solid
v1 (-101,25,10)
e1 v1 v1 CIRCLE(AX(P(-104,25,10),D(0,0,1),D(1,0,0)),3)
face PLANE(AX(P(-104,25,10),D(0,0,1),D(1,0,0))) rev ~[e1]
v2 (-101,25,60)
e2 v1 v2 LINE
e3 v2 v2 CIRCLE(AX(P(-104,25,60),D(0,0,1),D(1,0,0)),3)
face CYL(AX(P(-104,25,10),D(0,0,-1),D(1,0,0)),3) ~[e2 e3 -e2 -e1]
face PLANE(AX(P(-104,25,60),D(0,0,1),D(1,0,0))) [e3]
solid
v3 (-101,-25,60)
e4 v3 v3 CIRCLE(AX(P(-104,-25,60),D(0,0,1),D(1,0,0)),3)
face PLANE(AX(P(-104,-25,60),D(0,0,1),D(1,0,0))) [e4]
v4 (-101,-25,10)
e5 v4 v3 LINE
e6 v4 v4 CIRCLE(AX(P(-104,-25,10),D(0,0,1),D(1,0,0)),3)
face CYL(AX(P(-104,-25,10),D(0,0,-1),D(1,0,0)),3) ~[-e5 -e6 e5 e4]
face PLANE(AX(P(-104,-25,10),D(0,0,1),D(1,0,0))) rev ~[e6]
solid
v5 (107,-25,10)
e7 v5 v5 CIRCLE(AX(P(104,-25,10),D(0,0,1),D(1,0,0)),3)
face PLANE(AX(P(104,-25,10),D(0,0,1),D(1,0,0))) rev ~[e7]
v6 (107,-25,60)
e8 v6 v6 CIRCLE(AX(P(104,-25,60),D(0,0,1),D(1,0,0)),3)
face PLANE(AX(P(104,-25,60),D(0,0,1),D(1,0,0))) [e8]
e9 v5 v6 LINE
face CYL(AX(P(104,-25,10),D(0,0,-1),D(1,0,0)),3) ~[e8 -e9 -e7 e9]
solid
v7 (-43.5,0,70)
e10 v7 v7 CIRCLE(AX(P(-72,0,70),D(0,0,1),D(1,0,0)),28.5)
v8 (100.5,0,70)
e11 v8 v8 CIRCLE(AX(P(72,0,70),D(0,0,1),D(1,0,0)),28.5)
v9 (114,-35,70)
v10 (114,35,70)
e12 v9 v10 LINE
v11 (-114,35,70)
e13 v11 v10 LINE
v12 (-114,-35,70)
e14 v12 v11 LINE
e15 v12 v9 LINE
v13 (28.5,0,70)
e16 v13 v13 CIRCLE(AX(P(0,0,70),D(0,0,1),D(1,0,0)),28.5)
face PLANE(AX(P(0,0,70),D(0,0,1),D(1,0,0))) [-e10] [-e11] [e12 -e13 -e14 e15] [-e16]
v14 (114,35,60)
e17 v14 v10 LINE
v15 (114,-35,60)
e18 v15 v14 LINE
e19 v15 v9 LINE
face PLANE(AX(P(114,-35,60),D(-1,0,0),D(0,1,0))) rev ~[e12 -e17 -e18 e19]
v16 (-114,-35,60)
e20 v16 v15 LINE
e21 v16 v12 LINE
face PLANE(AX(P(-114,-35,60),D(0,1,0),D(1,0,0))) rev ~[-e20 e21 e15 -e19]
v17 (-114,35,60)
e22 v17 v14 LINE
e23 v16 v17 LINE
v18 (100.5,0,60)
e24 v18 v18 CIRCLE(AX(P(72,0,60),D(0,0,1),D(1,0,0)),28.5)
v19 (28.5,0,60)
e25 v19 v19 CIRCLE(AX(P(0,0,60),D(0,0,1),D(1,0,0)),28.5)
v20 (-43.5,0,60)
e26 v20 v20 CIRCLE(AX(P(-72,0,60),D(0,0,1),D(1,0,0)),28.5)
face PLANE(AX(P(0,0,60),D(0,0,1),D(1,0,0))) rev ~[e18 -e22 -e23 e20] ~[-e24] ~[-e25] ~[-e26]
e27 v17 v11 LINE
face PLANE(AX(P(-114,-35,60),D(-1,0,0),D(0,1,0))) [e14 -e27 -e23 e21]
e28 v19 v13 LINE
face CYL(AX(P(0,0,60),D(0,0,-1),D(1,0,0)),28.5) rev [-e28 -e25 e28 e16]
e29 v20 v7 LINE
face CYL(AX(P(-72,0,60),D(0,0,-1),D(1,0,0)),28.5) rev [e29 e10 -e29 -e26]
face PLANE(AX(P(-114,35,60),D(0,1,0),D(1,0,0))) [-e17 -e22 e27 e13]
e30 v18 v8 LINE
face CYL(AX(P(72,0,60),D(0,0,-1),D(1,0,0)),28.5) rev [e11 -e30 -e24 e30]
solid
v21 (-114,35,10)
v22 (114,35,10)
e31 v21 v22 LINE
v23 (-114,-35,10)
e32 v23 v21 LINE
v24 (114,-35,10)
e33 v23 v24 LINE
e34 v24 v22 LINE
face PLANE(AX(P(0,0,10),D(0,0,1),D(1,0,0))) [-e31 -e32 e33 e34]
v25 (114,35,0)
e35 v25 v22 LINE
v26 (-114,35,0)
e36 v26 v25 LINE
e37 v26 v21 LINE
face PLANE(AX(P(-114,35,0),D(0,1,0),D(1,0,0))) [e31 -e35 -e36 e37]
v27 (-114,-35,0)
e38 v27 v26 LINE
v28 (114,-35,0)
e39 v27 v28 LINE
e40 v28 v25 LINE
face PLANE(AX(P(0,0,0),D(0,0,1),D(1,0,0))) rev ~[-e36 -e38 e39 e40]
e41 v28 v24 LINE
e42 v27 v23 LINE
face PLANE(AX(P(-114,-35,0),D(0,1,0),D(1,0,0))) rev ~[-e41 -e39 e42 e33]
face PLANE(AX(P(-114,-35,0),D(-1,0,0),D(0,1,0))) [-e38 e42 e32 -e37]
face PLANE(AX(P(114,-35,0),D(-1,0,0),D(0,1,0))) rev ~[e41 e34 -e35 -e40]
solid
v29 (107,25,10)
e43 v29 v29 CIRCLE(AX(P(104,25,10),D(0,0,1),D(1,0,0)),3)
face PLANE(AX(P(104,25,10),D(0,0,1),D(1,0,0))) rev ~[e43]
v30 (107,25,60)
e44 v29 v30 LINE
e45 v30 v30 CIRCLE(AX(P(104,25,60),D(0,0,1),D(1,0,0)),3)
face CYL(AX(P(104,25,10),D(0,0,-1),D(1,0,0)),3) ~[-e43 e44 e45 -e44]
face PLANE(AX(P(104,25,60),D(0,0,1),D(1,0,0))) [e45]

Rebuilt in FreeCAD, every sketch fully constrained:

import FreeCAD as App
import Part
import Sketcher
from FreeCAD import Vector

doc = App.newDocument("Part")
body = doc.addObject("PartDesign::Body", "Body")

sketch1 = body.newObject("Sketcher::SketchObject", "Sketch")
sketch1.AttachmentSupport = (doc.getObject("XY_Plane"), [""])
sketch1.MapMode = "FlatFace"
sketch1.addGeometry([
    Part.LineSegment(Vector(-114, 35, 0), Vector(-114, -35, 0)),
    Part.LineSegment(Vector(-114, -35, 0), Vector(114, -35, 0)),
    Part.LineSegment(Vector(114, -35, 0), Vector(114, 35, 0)),
    Part.LineSegment(Vector(114, 35, 0), Vector(-114, 35, 0)),
], False)
sketch1.addConstraint([
    Sketcher.Constraint("Coincident", 0, 2, 1, 1),
    Sketcher.Constraint("Coincident", 1, 2, 2, 1),
    Sketcher.Constraint("Coincident", 2, 2, 3, 1),
    Sketcher.Constraint("Coincident", 3, 2, 0, 1),
    Sketcher.Constraint("Vertical", 0),
    Sketcher.Constraint("Horizontal", 1),
    Sketcher.Constraint("Vertical", 2),
    Sketcher.Constraint("Horizontal", 3),
    Sketcher.Constraint("Symmetric", 0, 2, 2, 2, -1, 1),
    Sketcher.Constraint("DistanceX", 1, 1, 1, 2, 228.0),
    Sketcher.Constraint("DistanceY", 0, 2, 0, 1, 70.0),
])
pad1 = body.newObject("PartDesign::Pad", "Pad")
pad1.Profile = sketch1
pad1.Length = 10
body2 = doc.addObject("PartDesign::Body", "Body001")

sketch2 = body2.newObject("Sketcher::SketchObject", "Sketch001")
sketch2.AttachmentSupport = (doc.getObject("XY_Plane001"), [""])
sketch2.MapMode = "FlatFace"
sketch2.AttachmentOffset = App.Placement(Vector(0, 0, 60), App.Rotation())
sketch2.addGeometry([
    Part.LineSegment(Vector(-114, 35, 0), Vector(-114, -35, 0)),
    Part.LineSegment(Vector(-114, -35, 0), Vector(114, -35, 0)),
    Part.LineSegment(Vector(114, -35, 0), Vector(114, 35, 0)),
    Part.LineSegment(Vector(114, 35, 0), Vector(-114, 35, 0)),
    Part.Circle(Vector(-72, 0, 0), Vector(0, 0, 1), 28),
    Part.Circle(Vector(0, 0, 0), Vector(0, 0, 1), 28),
    Part.Circle(Vector(72, 0, 0), Vector(0, 0, 1), 28),
], False)
sketch2.addConstraint([
    Sketcher.Constraint("Coincident", 0, 2, 1, 1),
    Sketcher.Constraint("Coincident", 1, 2, 2, 1),
    Sketcher.Constraint("Coincident", 2, 2, 3, 1),
    Sketcher.Constraint("Coincident", 3, 2, 0, 1),
    Sketcher.Constraint("Vertical", 0),
    Sketcher.Constraint("Horizontal", 1),
    Sketcher.Constraint("Vertical", 2),
    Sketcher.Constraint("Horizontal", 3),
    Sketcher.Constraint("Coincident", 5, 3, -1, 1),
    Sketcher.Constraint("Equal", 4, 5),
    Sketcher.Constraint("Equal", 5, 6),
    Sketcher.Constraint("Symmetric", 4, 3, 6, 3, -1, 1),
    Sketcher.Constraint("Symmetric", 0, 2, 2, 2, -1, 1),
    Sketcher.Constraint("PointOnObject", 4, 3, -1),
    Sketcher.Constraint("Diameter", 4, 57.0),
    Sketcher.Constraint("DistanceX", 1, 1, 1, 2, 228.0),
    Sketcher.Constraint("DistanceY", 0, 2, 0, 1, 70.0),
    Sketcher.Constraint("DistanceX", 4, 3, -1, 1, 72.0),
])
pad2 = body2.newObject("PartDesign::Pad", "Pad001")
pad2.Profile = sketch2
pad2.Length = 10
body3 = doc.addObject("PartDesign::Body", "Body002")

sketch3 = body3.newObject("Sketcher::SketchObject", "Sketch002")
sketch3.AttachmentSupport = (doc.getObject("XY_Plane002"), [""])
sketch3.MapMode = "FlatFace"
sketch3.AttachmentOffset = App.Placement(Vector(0, 0, 10), App.Rotation())
sketch3.addGeometry(Part.Circle(Vector(-104, -25, 0), Vector(0, 0, 1), 3), False)
sketch3.addConstraint([
    Sketcher.Constraint("Diameter", 0, 6.0),
    Sketcher.Constraint("DistanceX", 0, 3, -1, 1, 104.0),
    Sketcher.Constraint("DistanceY", 0, 3, -1, 1, 25.0),
])
pad3 = body3.newObject("PartDesign::Pad", "Pad002")
pad3.Profile = sketch3
pad3.Length = 50
body4 = doc.addObject("PartDesign::Body", "Body003")

sketch4 = body4.newObject("Sketcher::SketchObject", "Sketch003")
sketch4.AttachmentSupport = (doc.getObject("XY_Plane003"), [""])
sketch4.MapMode = "FlatFace"
sketch4.AttachmentOffset = App.Placement(Vector(0, 0, 10), App.Rotation())
sketch4.addGeometry(Part.Circle(Vector(-104, 25, 0), Vector(0, 0, 1), 3), False)
sketch4.addConstraint([
    Sketcher.Constraint("Diameter", 0, 6.0),
    Sketcher.Constraint("DistanceX", 0, 3, -1, 1, 104.0),
    Sketcher.Constraint("DistanceY", -1, 1, 0, 3, 25.0),
])
pad4 = body4.newObject("PartDesign::Pad", "Pad003")
pad4.Profile = sketch4
pad4.Length = 50
body5 = doc.addObject("PartDesign::Body", "Body004")

sketch5 = body5.newObject("Sketcher::SketchObject", "Sketch004")
sketch5.AttachmentSupport = (doc.getObject("XY_Plane004"), [""])
sketch5.MapMode = "FlatFace"
sketch5.AttachmentOffset = App.Placement(Vector(0, 0, 10), App.Rotation())
sketch5.addGeometry(Part.Circle(Vector(104, 25, 0), Vector(0, 0, 1), 3), False)
sketch5.addConstraint([
    Sketcher.Constraint("Diameter", 0, 6.0),
    Sketcher.Constraint("DistanceX", -1, 1, 0, 3, 104.0),
    Sketcher.Constraint("DistanceY", -1, 1, 0, 3, 25.0),
])
pad5 = body5.newObject("PartDesign::Pad", "Pad004")
pad5.Profile = sketch5
pad5.Length = 50
body6 = doc.addObject("PartDesign::Body", "Body005")

sketch6 = body6.newObject("Sketcher::SketchObject", "Sketch005")
sketch6.AttachmentSupport = (doc.getObject("XY_Plane005"), [""])
sketch6.MapMode = "FlatFace"
sketch6.AttachmentOffset = App.Placement(Vector(0, 0, 10), App.Rotation())
sketch6.addGeometry(Part.Circle(Vector(104, -25, 0), Vector(0, 0, 1), 3), False)
sketch6.addConstraint([
    Sketcher.Constraint("Diameter", 0, 6.0),
    Sketcher.Constraint("DistanceX", -1, 1, 0, 3, 104.0),
    Sketcher.Constraint("DistanceY", 0, 3, -1, 1, 25.0),
])
pad6 = body6.newObject("PartDesign::Pad", "Pad005")
pad6.Profile = sketch6
pad6.Length = 50

doc.recompute()
